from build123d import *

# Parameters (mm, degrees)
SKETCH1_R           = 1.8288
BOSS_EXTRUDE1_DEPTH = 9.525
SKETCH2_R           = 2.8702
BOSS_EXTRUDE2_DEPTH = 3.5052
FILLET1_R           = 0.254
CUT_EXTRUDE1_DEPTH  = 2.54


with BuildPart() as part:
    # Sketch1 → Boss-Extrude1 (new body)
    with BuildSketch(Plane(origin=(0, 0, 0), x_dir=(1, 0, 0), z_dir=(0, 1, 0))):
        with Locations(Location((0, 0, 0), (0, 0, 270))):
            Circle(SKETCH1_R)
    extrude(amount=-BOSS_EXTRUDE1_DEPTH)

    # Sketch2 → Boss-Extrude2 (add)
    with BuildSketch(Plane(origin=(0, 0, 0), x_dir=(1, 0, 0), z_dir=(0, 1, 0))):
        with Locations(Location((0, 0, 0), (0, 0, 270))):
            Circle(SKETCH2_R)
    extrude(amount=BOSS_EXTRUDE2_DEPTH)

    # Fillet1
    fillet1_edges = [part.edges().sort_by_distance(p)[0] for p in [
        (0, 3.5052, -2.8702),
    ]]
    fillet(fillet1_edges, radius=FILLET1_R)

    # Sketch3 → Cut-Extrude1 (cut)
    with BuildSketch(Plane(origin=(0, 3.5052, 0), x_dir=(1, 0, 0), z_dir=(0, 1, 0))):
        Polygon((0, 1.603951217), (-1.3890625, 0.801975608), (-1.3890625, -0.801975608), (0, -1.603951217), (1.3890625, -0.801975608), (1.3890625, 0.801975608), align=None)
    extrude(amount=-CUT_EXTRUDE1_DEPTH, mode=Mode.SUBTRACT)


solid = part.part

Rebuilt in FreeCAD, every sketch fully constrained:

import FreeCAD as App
import Part
import Sketcher

V = App.Vector
Q = App.Units.Quantity


def edges_at(feature, points):
    """Names of the edges that pass closest to the given points."""
    edges = feature.Shape.Edges
    near = lambda p: min(range(len(edges)), key=lambda i: edges[i].distToShape(Part.Vertex(*p))[0])
    return sorted({f"Edge{near(p) + 1}" for p in points})


def add_polygon(sketch, points):
    """Adds a closed chain of lines whose ends are joined by coincident constraints."""
    first, n = sketch.GeometryCount, len(points)
    for a, b in zip(points, points[1:] + points[:1]):
        sketch.addGeometry(Part.LineSegment(App.Vector(*a, 0), App.Vector(*b, 0)), False)
    for i in range(n):
        sketch.addConstraint(Sketcher.Constraint("Coincident", first + i, 2, first + (i + 1) % n, 1))

doc = App.newDocument("Part")
body = doc.addObject("PartDesign::Body", "Body")

# Sketch on XZ plane
sketch1 = doc.addObject("Sketcher::SketchObject", "Sketch")
body.addObject(sketch1)
sketch1.AttachmentSupport = (doc.XZ_Plane, [""])
sketch1.MapMode = "FlatFace"
sketch1.addGeometry(Part.Circle(V(0, 0, 0), V(0, 0, 1), 1.8), False)
sketch1.addConstraint(Sketcher.Constraint("Coincident", 0, 3, -1, 1))
sketch1.addConstraint(Sketcher.Constraint("Diameter", 0, Q("0.144 in")))
pad1 = doc.addObject("PartDesign::Pad", "Pad")
body.addObject(pad1)
pad1.Profile = sketch1
pad1.Length = Q("0.375 in")

# Sketch on XZ plane
sketch2 = doc.addObject("Sketcher::SketchObject", "Sketch001")
body.addObject(sketch2)
sketch2.AttachmentSupport = (doc.XZ_Plane, [""])
sketch2.MapMode = "FlatFace"
sketch2.addGeometry(Part.Circle(V(0, 0, 0), V(0, 0, 1), 2.9), False)
sketch2.addConstraint(Sketcher.Constraint("Coincident", 0, 3, -1, 1))
sketch2.addConstraint(Sketcher.Constraint("Diameter", 0, Q("0.226 in")))
pad2 = doc.addObject("PartDesign::Pad", "Pad001")
body.addObject(pad2)
pad2.Profile = sketch2
pad2.Length = Q("0.138 in")
pad2.Reversed = True
doc.recompute()

fillet = doc.addObject("PartDesign::Fillet", "Fillet")
body.addObject(fillet)
fillet.Base = (pad2, edges_at(pad2, [(0, 3.505, -2.87)]))
fillet.Radius = Q("0.01 in")

# Sketch on XZ plane
sketch3 = doc.addObject("Sketcher::SketchObject", "Sketch002")
body.addObject(sketch3)
sketch3.AttachmentSupport = (doc.XZ_Plane, [""])
sketch3.MapMode = "FlatFace"
sketch3.AttachmentOffset = App.Placement(V(0, 0, -0.138 * 25.4), App.Rotation())
add_polygon(sketch3, [(0, -1.6), (-1.4, -0.8), (-1.4, 0.8), (0, 1.6), (1.4, 0.8), (1.4, -0.8)])  # lines 0-5
sketch3.addConstraint(Sketcher.Constraint("Vertical", 1))
sketch3.addConstraint(Sketcher.Constraint("Vertical", 4))
sketch3.addConstraint(Sketcher.Constraint("Symmetric", 0, 2, 3, 2, -1, 1))
sketch3.addConstraint(Sketcher.Constraint("Symmetric", 2, 2, 5, 2, -1, 1))
sketch3.addConstraint(Sketcher.Constraint("PointOnObject", 2, 2, -2))
sketch3.addConstraint(Sketcher.Constraint("Parallel", 2, 5))
sketch3.addConstraint(Sketcher.Constraint("Horizontal", 1, 2, 3, 2))
sketch3.addConstraint(Sketcher.Constraint("Angle", 0, Q("150 deg")))
sketch3.addConstraint(Sketcher.Constraint("DistanceX", 1, 2, 3, 2, Q("0.109375 in")))
sketch3.addConstraint(Sketcher.Constraint("DistanceY", 1, 1, 1, 2, Q("1.603951 mm")))
pocket1 = doc.addObject("PartDesign::Pocket", "Pocket")
body.addObject(pocket1)
pocket1.Profile = sketch3
pocket1.Length = Q("0.1 in")
pocket1.Reversed = True

doc.recompute()
